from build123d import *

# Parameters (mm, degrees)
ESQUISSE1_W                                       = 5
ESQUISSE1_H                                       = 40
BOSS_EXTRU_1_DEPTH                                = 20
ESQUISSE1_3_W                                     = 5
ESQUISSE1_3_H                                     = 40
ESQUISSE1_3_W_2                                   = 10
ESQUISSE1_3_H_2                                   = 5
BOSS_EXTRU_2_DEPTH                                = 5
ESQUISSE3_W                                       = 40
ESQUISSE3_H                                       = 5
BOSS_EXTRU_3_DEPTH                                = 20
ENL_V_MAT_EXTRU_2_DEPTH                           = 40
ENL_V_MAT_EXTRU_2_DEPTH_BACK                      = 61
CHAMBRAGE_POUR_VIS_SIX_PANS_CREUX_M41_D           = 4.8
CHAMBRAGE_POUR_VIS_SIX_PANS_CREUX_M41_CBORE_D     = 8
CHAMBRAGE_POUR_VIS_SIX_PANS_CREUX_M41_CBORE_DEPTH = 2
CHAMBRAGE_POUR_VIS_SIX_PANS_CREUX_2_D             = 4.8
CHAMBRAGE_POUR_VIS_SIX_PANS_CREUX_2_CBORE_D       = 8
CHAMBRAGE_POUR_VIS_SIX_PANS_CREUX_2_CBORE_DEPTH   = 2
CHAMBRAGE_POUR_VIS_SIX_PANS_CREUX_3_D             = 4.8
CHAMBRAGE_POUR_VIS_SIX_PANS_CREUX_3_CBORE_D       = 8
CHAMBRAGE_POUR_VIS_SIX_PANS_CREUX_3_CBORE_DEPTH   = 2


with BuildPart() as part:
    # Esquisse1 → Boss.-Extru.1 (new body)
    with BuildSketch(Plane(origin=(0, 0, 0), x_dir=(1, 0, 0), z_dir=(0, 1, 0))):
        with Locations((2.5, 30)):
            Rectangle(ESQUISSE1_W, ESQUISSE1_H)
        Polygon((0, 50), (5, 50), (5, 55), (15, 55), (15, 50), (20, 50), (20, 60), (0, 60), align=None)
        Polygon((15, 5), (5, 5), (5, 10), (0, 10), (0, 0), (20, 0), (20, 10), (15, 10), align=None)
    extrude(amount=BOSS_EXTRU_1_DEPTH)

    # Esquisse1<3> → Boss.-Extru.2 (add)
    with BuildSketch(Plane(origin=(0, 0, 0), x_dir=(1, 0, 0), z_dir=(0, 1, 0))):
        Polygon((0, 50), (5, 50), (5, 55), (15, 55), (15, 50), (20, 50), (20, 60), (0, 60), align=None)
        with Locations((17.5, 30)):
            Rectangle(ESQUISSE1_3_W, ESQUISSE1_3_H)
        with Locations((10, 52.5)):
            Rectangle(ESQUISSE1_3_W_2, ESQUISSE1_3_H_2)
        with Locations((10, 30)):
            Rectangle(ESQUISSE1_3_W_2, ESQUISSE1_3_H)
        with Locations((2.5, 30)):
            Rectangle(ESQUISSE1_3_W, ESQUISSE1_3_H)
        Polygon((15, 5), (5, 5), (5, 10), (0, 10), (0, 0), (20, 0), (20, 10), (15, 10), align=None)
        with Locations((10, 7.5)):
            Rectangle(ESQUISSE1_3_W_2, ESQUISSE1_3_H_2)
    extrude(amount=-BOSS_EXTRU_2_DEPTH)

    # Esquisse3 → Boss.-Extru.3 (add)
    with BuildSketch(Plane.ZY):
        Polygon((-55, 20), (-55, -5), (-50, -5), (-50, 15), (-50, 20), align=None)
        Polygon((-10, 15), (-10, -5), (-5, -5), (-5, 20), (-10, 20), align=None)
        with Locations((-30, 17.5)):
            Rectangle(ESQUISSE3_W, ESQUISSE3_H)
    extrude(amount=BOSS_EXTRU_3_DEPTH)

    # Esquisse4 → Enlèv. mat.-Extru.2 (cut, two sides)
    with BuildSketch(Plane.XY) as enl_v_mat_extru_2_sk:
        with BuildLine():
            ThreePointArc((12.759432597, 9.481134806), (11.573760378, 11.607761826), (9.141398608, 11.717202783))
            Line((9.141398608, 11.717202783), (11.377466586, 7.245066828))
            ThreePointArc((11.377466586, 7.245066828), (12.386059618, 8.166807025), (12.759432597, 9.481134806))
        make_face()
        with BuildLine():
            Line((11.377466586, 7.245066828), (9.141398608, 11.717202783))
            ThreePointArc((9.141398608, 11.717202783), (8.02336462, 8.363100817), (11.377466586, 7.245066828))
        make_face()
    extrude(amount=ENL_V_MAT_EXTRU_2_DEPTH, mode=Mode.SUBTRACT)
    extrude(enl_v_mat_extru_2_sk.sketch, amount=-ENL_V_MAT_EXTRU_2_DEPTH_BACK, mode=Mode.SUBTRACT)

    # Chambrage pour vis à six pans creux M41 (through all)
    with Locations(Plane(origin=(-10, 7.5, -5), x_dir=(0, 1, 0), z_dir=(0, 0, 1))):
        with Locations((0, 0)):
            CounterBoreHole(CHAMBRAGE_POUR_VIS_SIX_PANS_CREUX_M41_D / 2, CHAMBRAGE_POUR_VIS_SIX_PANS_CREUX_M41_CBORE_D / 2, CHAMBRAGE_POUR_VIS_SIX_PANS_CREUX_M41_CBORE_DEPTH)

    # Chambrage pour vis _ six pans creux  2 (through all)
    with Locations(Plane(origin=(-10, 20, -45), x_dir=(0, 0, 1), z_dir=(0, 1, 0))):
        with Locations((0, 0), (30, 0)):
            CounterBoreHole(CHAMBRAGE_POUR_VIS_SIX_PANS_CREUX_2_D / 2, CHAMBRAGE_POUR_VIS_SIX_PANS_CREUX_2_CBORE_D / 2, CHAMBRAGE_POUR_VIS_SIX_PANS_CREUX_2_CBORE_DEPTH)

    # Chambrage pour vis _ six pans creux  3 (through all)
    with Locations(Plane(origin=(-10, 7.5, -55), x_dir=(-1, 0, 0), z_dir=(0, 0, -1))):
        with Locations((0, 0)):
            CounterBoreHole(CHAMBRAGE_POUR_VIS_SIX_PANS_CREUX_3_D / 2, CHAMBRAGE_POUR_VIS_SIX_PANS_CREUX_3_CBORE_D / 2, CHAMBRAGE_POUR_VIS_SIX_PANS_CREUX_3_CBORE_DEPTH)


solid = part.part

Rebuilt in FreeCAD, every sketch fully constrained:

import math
import FreeCAD as App
import Part
import Sketcher

doc = App.newDocument("Part")
body = doc.addObject("PartDesign::Body", "Body")

sketch1 = doc.addObject("Sketcher::SketchObject", "Sketch")
body.addObject(sketch1)
sketch1.AttachmentSupport = (doc.XZ_Plane, [""])
sketch1.MapMode = "FlatFace"
sketch1.addGeometry([
    Part.LineSegment(App.Vector(5, -55, 0), App.Vector(15, -55, 0)),
    Part.LineSegment(App.Vector(15, -55, 0), App.Vector(15, -50, 0)),
    Part.LineSegment(App.Vector(15, -50, 0), App.Vector(20, -50, 0)),
    Part.LineSegment(App.Vector(20, -50, 0), App.Vector(20, -60, 0)),
    Part.LineSegment(App.Vector(20, -60, 0), App.Vector(0, -60, 0)),
    Part.LineSegment(App.Vector(0, -60, 0), App.Vector(0, 0, 0)),
    Part.LineSegment(App.Vector(0, 0, 0), App.Vector(20, 0, 0)),
    Part.LineSegment(App.Vector(20, 0, 0), App.Vector(20, -10, 0)),
    Part.LineSegment(App.Vector(20, -10, 0), App.Vector(15, -10, 0)),
    Part.LineSegment(App.Vector(15, -10, 0), App.Vector(15, -5, 0)),
    Part.LineSegment(App.Vector(15, -5, 0), App.Vector(5, -5, 0)),
    Part.LineSegment(App.Vector(5, -5, 0), App.Vector(5, -55, 0)),
], False)
sketch1.addConstraint([
    Sketcher.Constraint("Coincident", 0, 2, 1, 1),
    Sketcher.Constraint("Coincident", 1, 2, 2, 1),
    Sketcher.Constraint("Coincident", 2, 2, 3, 1),
    Sketcher.Constraint("Coincident", 3, 2, 4, 1),
    Sketcher.Constraint("Coincident", 4, 2, 5, 1),
    Sketcher.Constraint("Coincident", 5, 2, 6, 1),
    Sketcher.Constraint("Coincident", 6, 2, 7, 1),
    Sketcher.Constraint("Coincident", 7, 2, 8, 1),
    Sketcher.Constraint("Coincident", 8, 2, 9, 1),
    Sketcher.Constraint("Coincident", 9, 2, 10, 1),
    Sketcher.Constraint("Coincident", 10, 2, 11, 1),
    Sketcher.Constraint("Coincident", 11, 2, 0, 1),
    Sketcher.Constraint("Horizontal", 0),
    Sketcher.Constraint("Vertical", 1),
    Sketcher.Constraint("Horizontal", 2),
    Sketcher.Constraint("Vertical", 3),
    Sketcher.Constraint("Horizontal", 4),
    Sketcher.Constraint("Vertical", 5),
    Sketcher.Constraint("Horizontal", 6),
    Sketcher.Constraint("Vertical", 7),
    Sketcher.Constraint("Horizontal", 8),
    Sketcher.Constraint("Vertical", 9),
    Sketcher.Constraint("Horizontal", 10),
    Sketcher.Constraint("Vertical", 11),
    Sketcher.Constraint("Coincident", 5, 2, -1, 1),
    Sketcher.Constraint("Vertical", 3, 2, 6, 2),
    Sketcher.Constraint("Vertical", 1, 2, 8, 2),
    Sketcher.Constraint("Equal", 8, 1),
    Sketcher.Constraint("Equal", 10, 3),
    Sketcher.Constraint("Equal", 3, 7),
    Sketcher.Constraint("Equal", 1, 9),
    Sketcher.Constraint("DistanceX", 0, 1, 0, 2, 10.0),
    Sketcher.Constraint("DistanceX", 2, 1, 2, 2, 5.0),
    Sketcher.Constraint("DistanceX", 4, 2, 4, 1, 20.0),
    Sketcher.Constraint("DistanceY", 5, 1, 5, 2, 60.0),
])
pad1 = doc.addObject("PartDesign::Pad", "Pad")
body.addObject(pad1)
pad1.Profile = sketch1
pad1.Length = 20
pad1.Reversed = True

sketch2 = doc.addObject("Sketcher::SketchObject", "Sketch001")
body.addObject(sketch2)
sketch2.AttachmentSupport = (doc.XZ_Plane, [""])
sketch2.MapMode = "FlatFace"
sketch2.addGeometry([
    Part.LineSegment(App.Vector(20, -60, 0), App.Vector(0, -60, 0)),
    Part.LineSegment(App.Vector(0, -60, 0), App.Vector(0, 0, 0)),
    Part.LineSegment(App.Vector(0, 0, 0), App.Vector(20, 0, 0)),
    Part.LineSegment(App.Vector(20, 0, 0), App.Vector(20, -60, 0)),
], False)
sketch2.addConstraint([
    Sketcher.Constraint("Coincident", 0, 2, 1, 1),
    Sketcher.Constraint("Coincident", 1, 2, 2, 1),
    Sketcher.Constraint("Coincident", 2, 2, 3, 1),
    Sketcher.Constraint("Coincident", 3, 2, 0, 1),
    Sketcher.Constraint("Horizontal", 0),
    Sketcher.Constraint("Vertical", 1),
    Sketcher.Constraint("Horizontal", 2),
    Sketcher.Constraint("Vertical", 3),
    Sketcher.Constraint("Coincident", 1, 2, -1, 1),
    Sketcher.Constraint("DistanceX", 0, 2, 0, 1, 20.0),
    Sketcher.Constraint("DistanceY", 1, 1, 1, 2, 60.0),
])
pad2 = doc.addObject("PartDesign::Pad", "Pad001")
body.addObject(pad2)
pad2.Profile = sketch2
pad2.Length = 5

sketch3 = doc.addObject("Sketcher::SketchObject", "Sketch002")
body.addObject(sketch3)
sketch3.AttachmentSupport = (doc.YZ_Plane, [""])
sketch3.MapMode = "FlatFace"
sketch3.addGeometry([
    Part.LineSegment(App.Vector(20, -55, 0), App.Vector(-5, -55, 0)),
    Part.LineSegment(App.Vector(-5, -55, 0), App.Vector(-5, -50, 0)),
    Part.LineSegment(App.Vector(-5, -50, 0), App.Vector(15, -50, 0)),
    Part.LineSegment(App.Vector(15, -50, 0), App.Vector(15, -10, 0)),
    Part.LineSegment(App.Vector(15, -10, 0), App.Vector(-5, -10, 0)),
    Part.LineSegment(App.Vector(-5, -10, 0), App.Vector(-5, -5, 0)),
    Part.LineSegment(App.Vector(-5, -5, 0), App.Vector(20, -5, 0)),
    Part.LineSegment(App.Vector(20, -5, 0), App.Vector(20, -55, 0)),
], False)
sketch3.addConstraint([
    Sketcher.Constraint("Coincident", 0, 2, 1, 1),
    Sketcher.Constraint("Coincident", 1, 2, 2, 1),
    Sketcher.Constraint("Coincident", 2, 2, 3, 1),
    Sketcher.Constraint("Coincident", 3, 2, 4, 1),
    Sketcher.Constraint("Coincident", 4, 2, 5, 1),
    Sketcher.Constraint("Coincident", 5, 2, 6, 1),
    Sketcher.Constraint("Coincident", 6, 2, 7, 1),
    Sketcher.Constraint("Coincident", 7, 2, 0, 1),
    Sketcher.Constraint("Horizontal", 0),
    Sketcher.Constraint("Vertical", 1),
    Sketcher.Constraint("Horizontal", 2),
    Sketcher.Constraint("Vertical", 3),
    Sketcher.Constraint("Horizontal", 4),
    Sketcher.Constraint("Vertical", 5),
    Sketcher.Constraint("Horizontal", 6),
    Sketcher.Constraint("Vertical", 7),
    Sketcher.Constraint("Vertical", 1, 2, 4, 2),
    Sketcher.Constraint("Equal", 1, 5),
    Sketcher.Constraint("DistanceX", 0, 2, 0, 1, 25.0),
    Sketcher.Constraint("DistanceX", 2, 1, 2, 2, 20.0),
    Sketcher.Constraint("DistanceY", 1, 1, 1, 2, 5.0),
    Sketcher.Constraint("DistanceY", 3, 1, 3, 2, 40.0),
    Sketcher.Constraint("DistanceX", 0, 2, -1, 1, 5.0),
    Sketcher.Constraint("DistanceY", 0, 2, -1, 1, 55.0),
])
pad3 = doc.addObject("PartDesign::Pad", "Pad002")
body.addObject(pad3)
pad3.Profile = sketch3
pad3.Length = 20
pad3.Reversed = True

sketch4 = doc.addObject("Sketcher::SketchObject", "Sketch003")
body.addObject(sketch4)
sketch4.AttachmentSupport = (doc.XY_Plane, [""])
sketch4.MapMode = "FlatFace"
sketch4.addGeometry([
    Part.ArcOfCircle(Part.Circle(App.Vector(10.259433, 9.481135, 0), App.Vector(0, 0, 1), 2.5), math.radians(0), math.radians(116.565051)),
    Part.ArcOfCircle(Part.Circle(App.Vector(10.259433, 9.481135, 0), App.Vector(0, 0, 1), 2.5), math.radians(116.565051), math.radians(296.565051)),
    Part.ArcOfCircle(Part.Circle(App.Vector(10.259433, 9.481135, 0), App.Vector(0, 0, 1), 2.5), math.radians(-63.434949), math.radians(0)),
], False)
sketch4.addConstraint([
    Sketcher.Constraint("Tangent", 0, 2, 1, 1),
    Sketcher.Constraint("Tangent", 1, 2, 2, 1),
    Sketcher.Constraint("Tangent", 2, 2, 0, 1),
    Sketcher.Constraint("Horizontal", 1, 3, 2, 2),
    Sketcher.Constraint("Radius", 0, 2.5),
    Sketcher.Constraint("DistanceX", -1, 1, 0, 2, 9.141399),
    Sketcher.Constraint("DistanceX", -1, 1, 0, 3, 10.259433),
    Sketcher.Constraint("DistanceY", -1, 1, 0, 3, 9.481135),
    Sketcher.Constraint("DistanceX", -1, 1, 1, 2, 11.377467),
])
pocket1 = doc.addObject("PartDesign::Pocket", "Pocket")
body.addObject(pocket1)
pocket1.Profile = sketch4
pocket1.Type = "ThroughAll"
pocket1.Midplane = True

sketch5 = doc.addObject("Sketcher::SketchObject", "Sketch004")
body.addObject(sketch5)
sketch5.AttachmentSupport = (doc.XY_Plane, [""])
sketch5.MapMode = "FlatFace"
sketch5.AttachmentOffset = App.Placement(App.Vector(0, 0, -5), App.Rotation())
sketch5.addGeometry(Part.Circle(App.Vector(-10, 7.5, 0), App.Vector(0, 0, 1), 2.4), False)
sketch5.addConstraint([
    Sketcher.Constraint("Diameter", 0, 4.8),
    Sketcher.Constraint("DistanceX", 0, 3, -1, 1, 10.0),
    Sketcher.Constraint("DistanceY", -1, 1, 0, 3, 7.5),
])
doc.recompute()
hole = doc.addObject("PartDesign::Hole", "Hole")
body.addObject(hole)
hole.Profile = sketch5
hole.ThreadType = "None"
hole.Diameter = 4.8
hole.DepthType = "ThroughAll"
hole.HoleCutType = "Counterbore"
hole.HoleCutDiameter = 8
hole.HoleCutDepth = 2

sketch6 = doc.addObject("Sketcher::SketchObject", "Sketch005")
body.addObject(sketch6)
sketch6.AttachmentSupport = (doc.XZ_Plane, [""])
sketch6.MapMode = "FlatFace"
sketch6.AttachmentOffset = App.Placement(App.Vector(0, 0, -20), App.Rotation())
sketch6.addGeometry([
    Part.Circle(App.Vector(-10, -45, 0), App.Vector(0, 0, 1), 2.4),
    Part.Circle(App.Vector(-10, -15, 0), App.Vector(0, 0, 1), 2.4),
], False)
sketch6.addConstraint([
    Sketcher.Constraint("Equal", 0, 1),
    Sketcher.Constraint("Vertical", 0, 3, 1, 3),
    Sketcher.Constraint("Diameter", 0, 4.8),
    Sketcher.Constraint("DistanceX", 0, 3, -1, 1, 10.0),
    Sketcher.Constraint("DistanceY", 0, 3, -1, 1, 45.0),
    Sketcher.Constraint("DistanceY", 1, 3, -1, 1, 15.0),
])
doc.recompute()
hole2 = doc.addObject("PartDesign::Hole", "Hole001")
body.addObject(hole2)
hole2.Profile = sketch6
hole2.ThreadType = "None"
hole2.Diameter = 4.8
hole2.DepthType = "ThroughAll"
hole2.HoleCutType = "Counterbore"
hole2.HoleCutDiameter = 8
hole2.HoleCutDepth = 2
hole2.Reversed = True

sketch7 = doc.addObject("Sketcher::SketchObject", "Sketch006")
body.addObject(sketch7)
sketch7.AttachmentSupport = (doc.XY_Plane, [""])
sketch7.MapMode = "FlatFace"
sketch7.AttachmentOffset = App.Placement(App.Vector(0, 0, -55), App.Rotation())
sketch7.addGeometry(Part.Circle(App.Vector(-10, 7.5, 0), App.Vector(0, 0, 1), 2.4), False)
sketch7.addConstraint([
    Sketcher.Constraint("Diameter", 0, 4.8),
    Sketcher.Constraint("DistanceX", 0, 3, -1, 1, 10.0),
    Sketcher.Constraint("DistanceY", -1, 1, 0, 3, 7.5),
])
doc.recompute()
hole3 = doc.addObject("PartDesign::Hole", "Hole002")
body.addObject(hole3)
hole3.Profile = sketch7
hole3.ThreadType = "None"
hole3.Diameter = 4.8
hole3.DepthType = "ThroughAll"
hole3.HoleCutType = "Counterbore"
hole3.HoleCutDiameter = 8
hole3.HoleCutDepth = 2
hole3.Reversed = True

doc.recompute()
